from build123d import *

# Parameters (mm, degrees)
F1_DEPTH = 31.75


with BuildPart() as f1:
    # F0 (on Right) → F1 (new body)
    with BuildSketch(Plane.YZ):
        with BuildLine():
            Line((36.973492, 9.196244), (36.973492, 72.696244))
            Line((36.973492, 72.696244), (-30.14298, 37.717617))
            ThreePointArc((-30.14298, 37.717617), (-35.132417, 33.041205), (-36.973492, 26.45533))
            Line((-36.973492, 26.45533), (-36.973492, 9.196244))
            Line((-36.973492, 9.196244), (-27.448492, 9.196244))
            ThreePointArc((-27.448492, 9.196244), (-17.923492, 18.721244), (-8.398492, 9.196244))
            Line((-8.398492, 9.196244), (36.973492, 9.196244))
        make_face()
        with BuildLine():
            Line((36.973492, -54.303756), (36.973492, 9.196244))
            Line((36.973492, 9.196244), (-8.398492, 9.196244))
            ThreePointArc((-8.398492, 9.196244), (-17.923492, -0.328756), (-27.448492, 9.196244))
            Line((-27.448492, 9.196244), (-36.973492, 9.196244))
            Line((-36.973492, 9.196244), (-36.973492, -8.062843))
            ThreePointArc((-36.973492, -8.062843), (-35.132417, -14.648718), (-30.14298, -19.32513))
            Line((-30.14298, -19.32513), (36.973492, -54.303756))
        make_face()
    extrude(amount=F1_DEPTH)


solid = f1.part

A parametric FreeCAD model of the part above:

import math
import FreeCAD as App
import Part
import Sketcher

V = App.Vector
Q = App.Units.Quantity

doc = App.newDocument("Part")
body = doc.addObject("PartDesign::Body", "Body")

sketch1 = body.newObject("Sketcher::SketchObject", "Sketch")
sketch1.AttachmentSupport = (doc.getObject("YZ_Plane"), [""])
sketch1.MapMode = "FlatFace"
sketch1.addGeometry([
    Part.LineSegment(V(37, 73, 0), V(-30, 38, 0)),
    Part.ArcOfCircle(Part.Circle(V(-24, 26, 0), V(0, 0, 1), 13), math.radians(118), math.radians(180)),
    Part.LineSegment(V(-37, 26, 0), V(-37, -8, 0)),
    Part.ArcOfCircle(Part.Circle(V(-24, -8, 0), V(0, 0, 1), 13), math.radians(180), math.radians(242)),
    Part.LineSegment(V(-30, -19, 0), V(37, -54, 0)),
    Part.LineSegment(V(37, -54, 0), V(37, 73, 0)),
    Part.Circle(V(-18, 9, 0), V(0, 0, 1), 10),
], False)
sketch1.addConstraint([
    Sketcher.Constraint("Tangent", 0, 2, 1, 1),
    Sketcher.Constraint("Tangent", 1, 2, 2, 1),
    Sketcher.Constraint("Tangent", 2, 2, 3, 1),
    Sketcher.Constraint("Tangent", 3, 2, 4, 1),
    Sketcher.Constraint("Coincident", 4, 2, 5, 1),
    Sketcher.Constraint("Coincident", 5, 2, 0, 1),
    Sketcher.Constraint("Vertical", 2),
    Sketcher.Constraint("Vertical", 5),
    Sketcher.Constraint("Equal", 1, 3),
    Sketcher.Constraint("Vertical", 0, 2, 3, 2),
    Sketcher.Constraint("Radius", 1, Q("0.5 in")),
    Sketcher.Constraint("Diameter", 6, Q("0.75 in")),
    Sketcher.Constraint("DistanceY", 5, 1, 5, 2, Q("5 in")),
    Sketcher.Constraint("DistanceY", 4, 2, 6, 3, Q("2.5 in")),
    Sketcher.Constraint("DistanceX", 1, 3, 6, 3, Q("0.25 in")),
    Sketcher.Constraint("Distance", 0, Q("2.9796999 in")),
    Sketcher.Constraint("DistanceY", 2, 2, 2, 1, Q("34.518173 mm")),
    Sketcher.Constraint("DistanceY", -1, 1, 1, 3, Q("26.45533 mm")),
    Sketcher.Constraint("DistanceX", 6, 3, -1, 1, Q("17.923492 mm")),
])
pad1 = body.newObject("PartDesign::Pad", "Pad")
pad1.Profile = sketch1
pad1.Length = Q("1.25 in")

doc.recompute()
